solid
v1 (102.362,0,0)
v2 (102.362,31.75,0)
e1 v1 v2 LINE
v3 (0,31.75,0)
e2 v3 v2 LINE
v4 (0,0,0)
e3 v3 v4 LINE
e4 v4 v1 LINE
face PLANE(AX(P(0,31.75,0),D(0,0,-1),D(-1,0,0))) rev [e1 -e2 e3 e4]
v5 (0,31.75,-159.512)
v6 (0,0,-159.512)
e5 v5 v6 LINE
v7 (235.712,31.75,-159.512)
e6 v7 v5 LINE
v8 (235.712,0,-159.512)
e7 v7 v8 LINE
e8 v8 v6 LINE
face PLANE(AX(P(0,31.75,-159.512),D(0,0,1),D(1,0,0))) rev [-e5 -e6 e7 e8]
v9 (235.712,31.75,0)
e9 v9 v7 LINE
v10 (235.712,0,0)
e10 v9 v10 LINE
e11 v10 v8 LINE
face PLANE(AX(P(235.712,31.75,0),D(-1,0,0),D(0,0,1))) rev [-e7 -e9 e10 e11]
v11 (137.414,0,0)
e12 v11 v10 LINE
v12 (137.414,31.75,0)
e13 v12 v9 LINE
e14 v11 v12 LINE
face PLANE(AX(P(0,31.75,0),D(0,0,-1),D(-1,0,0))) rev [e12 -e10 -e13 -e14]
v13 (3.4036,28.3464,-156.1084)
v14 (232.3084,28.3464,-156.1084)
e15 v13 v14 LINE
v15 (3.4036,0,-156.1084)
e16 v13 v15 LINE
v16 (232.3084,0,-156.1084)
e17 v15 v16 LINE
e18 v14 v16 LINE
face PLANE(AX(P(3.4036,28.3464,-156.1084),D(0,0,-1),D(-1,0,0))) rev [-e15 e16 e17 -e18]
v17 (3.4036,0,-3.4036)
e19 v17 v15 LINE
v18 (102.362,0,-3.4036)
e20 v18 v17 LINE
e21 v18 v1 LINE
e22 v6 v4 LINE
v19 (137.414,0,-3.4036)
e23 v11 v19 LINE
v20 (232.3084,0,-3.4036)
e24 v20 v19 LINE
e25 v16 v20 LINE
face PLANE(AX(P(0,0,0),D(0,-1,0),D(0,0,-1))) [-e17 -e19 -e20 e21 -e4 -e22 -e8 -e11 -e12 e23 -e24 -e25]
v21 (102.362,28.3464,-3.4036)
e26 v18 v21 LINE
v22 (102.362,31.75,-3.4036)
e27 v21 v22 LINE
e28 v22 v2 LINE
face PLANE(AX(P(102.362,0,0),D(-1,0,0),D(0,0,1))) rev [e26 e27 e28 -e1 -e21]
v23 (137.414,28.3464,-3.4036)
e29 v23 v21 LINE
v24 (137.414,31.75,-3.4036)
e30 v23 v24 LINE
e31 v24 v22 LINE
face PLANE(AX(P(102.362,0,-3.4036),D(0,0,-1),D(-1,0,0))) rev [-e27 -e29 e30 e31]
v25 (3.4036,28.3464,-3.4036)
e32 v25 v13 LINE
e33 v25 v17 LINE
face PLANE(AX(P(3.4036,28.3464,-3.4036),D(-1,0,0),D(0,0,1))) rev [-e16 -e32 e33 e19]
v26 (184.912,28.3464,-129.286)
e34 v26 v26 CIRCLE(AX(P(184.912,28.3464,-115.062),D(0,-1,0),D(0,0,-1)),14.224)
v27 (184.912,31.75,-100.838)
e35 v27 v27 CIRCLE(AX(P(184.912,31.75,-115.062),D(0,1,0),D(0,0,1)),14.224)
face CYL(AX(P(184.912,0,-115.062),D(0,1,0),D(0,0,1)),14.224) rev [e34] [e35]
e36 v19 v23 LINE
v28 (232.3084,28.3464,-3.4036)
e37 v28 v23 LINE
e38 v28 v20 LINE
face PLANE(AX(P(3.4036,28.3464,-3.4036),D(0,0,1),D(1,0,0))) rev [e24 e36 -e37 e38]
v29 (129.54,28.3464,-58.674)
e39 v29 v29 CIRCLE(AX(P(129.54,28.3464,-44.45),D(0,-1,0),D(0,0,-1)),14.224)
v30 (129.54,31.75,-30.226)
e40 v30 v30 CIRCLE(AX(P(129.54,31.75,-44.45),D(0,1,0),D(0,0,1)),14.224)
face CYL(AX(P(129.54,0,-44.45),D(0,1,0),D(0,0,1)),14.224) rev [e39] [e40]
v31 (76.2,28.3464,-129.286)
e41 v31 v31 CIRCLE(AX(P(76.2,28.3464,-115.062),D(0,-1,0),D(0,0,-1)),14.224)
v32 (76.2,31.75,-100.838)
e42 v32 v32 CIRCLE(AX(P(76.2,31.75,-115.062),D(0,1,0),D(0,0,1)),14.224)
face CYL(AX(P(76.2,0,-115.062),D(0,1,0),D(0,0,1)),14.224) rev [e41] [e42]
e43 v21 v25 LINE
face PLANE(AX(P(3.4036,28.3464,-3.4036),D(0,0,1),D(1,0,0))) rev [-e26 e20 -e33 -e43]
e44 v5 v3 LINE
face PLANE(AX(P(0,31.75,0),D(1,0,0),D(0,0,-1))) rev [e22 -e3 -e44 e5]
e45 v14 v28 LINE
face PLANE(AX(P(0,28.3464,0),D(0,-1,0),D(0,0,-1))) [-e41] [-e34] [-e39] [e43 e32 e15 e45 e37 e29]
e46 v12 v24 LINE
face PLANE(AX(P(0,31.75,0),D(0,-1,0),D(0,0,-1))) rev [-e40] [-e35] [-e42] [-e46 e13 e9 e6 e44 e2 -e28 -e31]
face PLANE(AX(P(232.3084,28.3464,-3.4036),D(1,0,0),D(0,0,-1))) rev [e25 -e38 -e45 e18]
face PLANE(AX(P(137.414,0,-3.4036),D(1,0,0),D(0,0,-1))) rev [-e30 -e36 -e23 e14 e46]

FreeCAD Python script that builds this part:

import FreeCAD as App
import Part
import Sketcher
from FreeCAD import Vector
Q = App.Units.Quantity


def add_polygon(sketch, points):
    """Adds a closed chain of lines whose ends are joined by coincident constraints."""
    first, n = sketch.GeometryCount, len(points)
    for a, b in zip(points, points[1:] + points[:1]):
        sketch.addGeometry(Part.LineSegment(App.Vector(*a, 0), App.Vector(*b, 0)), False)
    for i in range(n):
        sketch.addConstraint(Sketcher.Constraint("Coincident", first + i, 2, first + (i + 1) % n, 1))

doc = App.newDocument("Part")
body = doc.addObject("PartDesign::Body", "Body")

sketch1 = body.newObject("Sketcher::SketchObject", "Sketch")
sketch1.AttachmentSupport = (doc.getObject("XZ_Plane"), [""])
sketch1.MapMode = "FlatFace"
add_polygon(sketch1, [(0, -160), (0, 0), (236, 0), (236, -160)])
sketch1.addConstraint([
    Sketcher.Constraint("Vertical", 0),
    Sketcher.Constraint("Horizontal", 1),
    Sketcher.Constraint("Vertical", 2),
    Sketcher.Constraint("Horizontal", 3),
    Sketcher.Constraint("Coincident", 0, 2, -1, 1),
    Sketcher.Constraint("DistanceX", 1, 1, 1, 2, Q("9.28 in")),
    Sketcher.Constraint("DistanceY", 0, 1, 0, 2, Q("6.28 in")),
])
pad1 = body.newObject("PartDesign::Pad", "Pad")
pad1.Profile = sketch1
pad1.Length = Q("1.25 in")
pad1.Reversed = True

sketch2 = body.newObject("Sketcher::SketchObject", "Sketch001")
sketch2.AttachmentSupport = (doc.getObject("XZ_Plane"), [""])
sketch2.MapMode = "FlatFace"
add_polygon(sketch2, [(3, -3), (3, -156), (232, -156), (232, -3)])
sketch2.addConstraint([
    Sketcher.Constraint("Vertical", 0),
    Sketcher.Constraint("Horizontal", 1),
    Sketcher.Constraint("Vertical", 2),
    Sketcher.Constraint("Horizontal", 3),
    Sketcher.Constraint("DistanceX", 1, 1, 1, 2, Q("9.012 in")),
    Sketcher.Constraint("DistanceY", 0, 2, 0, 1, Q("6.012 in")),
    Sketcher.Constraint("DistanceX", -1, 1, 0, 2, Q("0.134 in")),
    Sketcher.Constraint("DistanceY", 0, 2, -1, 1, Q("6.146 in")),
])
pocket1 = body.newObject("PartDesign::Pocket", "Pocket")
pocket1.Profile = sketch2
pocket1.Length = Q("1.116 in")

sketch3 = body.newObject("Sketcher::SketchObject", "Sketch002")
sketch3.AttachmentSupport = (doc.getObject("XZ_Plane"), [""])
sketch3.MapMode = "FlatFace"
sketch3.AttachmentOffset = App.Placement(Vector(0, 0, -1.25 * 25.4), App.Rotation())
add_polygon(sketch3, [(102.4, -3.4), (102.4, 0), (137.4, 0), (137.4, -3.4)])
sketch3.addConstraint([
    Sketcher.Constraint("Vertical", 0),
    Sketcher.Constraint("Horizontal", 1),
    Sketcher.Constraint("Vertical", 2),
    Sketcher.Constraint("Horizontal", 3),
    Sketcher.Constraint("PointOnObject", 0, 2, -1),
    Sketcher.Constraint("DistanceX", 1, 1, 1, 2, Q("1.38 in")),
    Sketcher.Constraint("DistanceY", 0, 1, 0, 2, Q("0.134 in")),
    Sketcher.Constraint("DistanceX", -1, 1, 0, 2, Q("4.03 in")),
])
pocket2 = body.newObject("PartDesign::Pocket", "Pocket001")
pocket2.Profile = sketch3
pocket2.Type = "ThroughAll"
pocket2.Reversed = True

sketch4 = body.newObject("Sketcher::SketchObject", "Sketch003")
sketch4.AttachmentSupport = (doc.getObject("XZ_Plane"), [""])
sketch4.MapMode = "FlatFace"
sketch4.AttachmentOffset = App.Placement(Vector(0, 0, -1.25 * 25.4), App.Rotation())
sketch4.addGeometry([
    Part.Circle(Vector(76, -115, 0), Vector(0, 0, 1), 14),
    Part.Circle(Vector(130, -44, 0), Vector(0, 0, 1), 14),
    Part.Circle(Vector(185, -115, 0), Vector(0, 0, 1), 14),
], False)
sketch4.addConstraint([
    Sketcher.Constraint("Equal", 0, 1),
    Sketcher.Constraint("Equal", 1, 2),
    Sketcher.Constraint("Horizontal", 0, 3, 2, 3),
    Sketcher.Constraint("Diameter", 0, Q("1.12 in")),
    Sketcher.Constraint("DistanceX", -1, 1, 0, 3, Q("3 in")),
    Sketcher.Constraint("DistanceX", -1, 1, 1, 3, Q("5.1 in")),
    Sketcher.Constraint("DistanceY", 0, 3, -1, 1, Q("4.53 in")),
    Sketcher.Constraint("DistanceY", 1, 3, -1, 1, Q("1.75 in")),
    Sketcher.Constraint("DistanceX", -1, 1, 2, 3, Q("7.28 in")),
])
pocket3 = body.newObject("PartDesign::Pocket", "Pocket002")
pocket3.Profile = sketch4
pocket3.Type = "ThroughAll"
pocket3.Reversed = True

doc.recompute()
